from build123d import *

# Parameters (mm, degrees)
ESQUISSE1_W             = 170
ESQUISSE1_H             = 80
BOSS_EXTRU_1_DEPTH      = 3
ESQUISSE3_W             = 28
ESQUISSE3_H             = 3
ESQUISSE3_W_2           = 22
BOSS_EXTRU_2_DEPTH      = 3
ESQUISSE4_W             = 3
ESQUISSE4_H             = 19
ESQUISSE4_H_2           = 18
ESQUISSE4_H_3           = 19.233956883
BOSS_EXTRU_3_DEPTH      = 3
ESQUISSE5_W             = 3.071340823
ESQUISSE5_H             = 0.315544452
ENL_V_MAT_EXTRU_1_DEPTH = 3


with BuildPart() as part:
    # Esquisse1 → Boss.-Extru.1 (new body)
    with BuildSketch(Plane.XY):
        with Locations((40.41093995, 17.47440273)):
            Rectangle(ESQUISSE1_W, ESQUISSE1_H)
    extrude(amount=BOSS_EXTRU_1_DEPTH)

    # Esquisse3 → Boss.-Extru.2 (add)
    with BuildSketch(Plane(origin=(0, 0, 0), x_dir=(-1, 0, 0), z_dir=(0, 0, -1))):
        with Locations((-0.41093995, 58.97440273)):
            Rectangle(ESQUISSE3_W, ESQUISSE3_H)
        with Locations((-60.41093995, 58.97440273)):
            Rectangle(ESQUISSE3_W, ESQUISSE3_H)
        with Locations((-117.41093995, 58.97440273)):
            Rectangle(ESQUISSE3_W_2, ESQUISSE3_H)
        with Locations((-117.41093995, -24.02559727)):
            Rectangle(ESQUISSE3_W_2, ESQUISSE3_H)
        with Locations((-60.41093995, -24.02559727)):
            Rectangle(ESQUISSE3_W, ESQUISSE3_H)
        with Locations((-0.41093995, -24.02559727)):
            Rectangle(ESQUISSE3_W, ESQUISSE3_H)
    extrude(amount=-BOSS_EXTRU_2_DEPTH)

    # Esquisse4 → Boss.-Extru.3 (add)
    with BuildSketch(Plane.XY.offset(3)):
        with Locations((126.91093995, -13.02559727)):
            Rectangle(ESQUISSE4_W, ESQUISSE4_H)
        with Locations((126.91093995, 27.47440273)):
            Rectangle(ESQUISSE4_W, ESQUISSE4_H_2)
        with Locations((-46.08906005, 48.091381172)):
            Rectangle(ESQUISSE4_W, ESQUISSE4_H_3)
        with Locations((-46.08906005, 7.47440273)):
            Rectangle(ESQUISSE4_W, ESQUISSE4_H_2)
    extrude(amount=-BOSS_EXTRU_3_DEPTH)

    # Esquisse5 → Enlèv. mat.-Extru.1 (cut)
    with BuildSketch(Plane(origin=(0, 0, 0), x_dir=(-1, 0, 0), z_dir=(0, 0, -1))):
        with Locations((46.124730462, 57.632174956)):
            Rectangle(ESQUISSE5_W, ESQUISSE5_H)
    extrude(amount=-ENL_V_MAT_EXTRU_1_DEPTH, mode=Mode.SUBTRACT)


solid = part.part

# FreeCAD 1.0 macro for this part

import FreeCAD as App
import Part
import Sketcher
Q = App.Units.Quantity

doc = App.newDocument("Part")
params = doc.addObject("Spreadsheet::Sheet", "Params")
for row, (alias, value) in enumerate([
    ("sketch1_width", "170 mm"),
    ("sketch1_height", "80 mm"),
    ("pad1_length", "3 mm"),
    ("sketch2_width", "28 mm"),
    ("sketch2_width2", "22 mm"),
    ("sketch2_height", "3 mm"),
    ("pad2_length", "3 mm"),
    ("sketch3_width", "3 mm"),
    ("sketch3_height", "19 mm"),
    ("sketch3_height2", "18 mm"),
    ("pad3_length", "3 mm"),
    ("pocket1_length", "3 mm"),
], start=1):
    params.set(f"A{row}", alias)
    params.set(f"B{row}", "=" + value)
    params.setAlias(f"B{row}", alias)

body = doc.addObject("PartDesign::Body", "Body")

sketch1 = body.newObject("Sketcher::SketchObject", "Sketch")
sketch1.AttachmentSupport = (doc.getObject("XY_Plane"), [""])
sketch1.MapMode = "FlatFace"
sketch1.addGeometry(Part.LineSegment(App.Vector(-45, 57, 0), App.Vector(-45, -23, 0)), False)
sketch1.addGeometry(Part.LineSegment(App.Vector(-45, -23, 0), App.Vector(125, -23, 0)), False)
sketch1.addGeometry(Part.LineSegment(App.Vector(125, -23, 0), App.Vector(125, 57, 0)), False)
sketch1.addGeometry(Part.LineSegment(App.Vector(125, 57, 0), App.Vector(-45, 57, 0)), False)
sketch1.addConstraint(Sketcher.Constraint("Coincident", 0, 2, 1, 1))
sketch1.addConstraint(Sketcher.Constraint("Coincident", 1, 2, 2, 1))
sketch1.addConstraint(Sketcher.Constraint("Coincident", 2, 2, 3, 1))
sketch1.addConstraint(Sketcher.Constraint("Coincident", 3, 2, 0, 1))
sketch1.addConstraint(Sketcher.Constraint("Vertical", 0))
sketch1.addConstraint(Sketcher.Constraint("Horizontal", 1))
sketch1.addConstraint(Sketcher.Constraint("Vertical", 2))
sketch1.addConstraint(Sketcher.Constraint("Horizontal", 3))
sketch1.addConstraint(Sketcher.Constraint("DistanceX", 1, 1, 1, 2, Q("170 mm")))
sketch1.addConstraint(Sketcher.Constraint("DistanceY", 0, 2, 0, 1, Q("80 mm")))
sketch1.addConstraint(Sketcher.Constraint("DistanceX", 0, 2, -1, 1, Q("44.58906 mm")))
sketch1.addConstraint(Sketcher.Constraint("DistanceY", 0, 2, -1, 1, Q("22.525597 mm")))
sketch1.setExpression("Constraints[8]", "Params.sketch1_width")
sketch1.setExpression("Constraints[9]", "Params.sketch1_height")
pad1 = body.newObject("PartDesign::Pad", "Pad")
pad1.Profile = sketch1
pad1.setExpression("Length", "Params.pad1_length")

sketch2 = body.newObject("Sketcher::SketchObject", "Sketch001")
sketch2.AttachmentSupport = (doc.getObject("XY_Plane"), [""])
sketch2.MapMode = "FlatFace"
sketch2.addGeometry(Part.LineSegment(App.Vector(14.4, 60.5, 0), App.Vector(14.4, 57.5, 0)), False)
sketch2.addGeometry(Part.LineSegment(App.Vector(14.4, 57.5, 0), App.Vector(-13.6, 57.5, 0)), False)
sketch2.addGeometry(Part.LineSegment(App.Vector(-13.6, 57.5, 0), App.Vector(-13.6, 60.5, 0)), False)
sketch2.addGeometry(Part.LineSegment(App.Vector(-13.6, 60.5, 0), App.Vector(14.4, 60.5, 0)), False)
sketch2.addGeometry(Part.LineSegment(App.Vector(74.4, 60.5, 0), App.Vector(74.4, 57.5, 0)), False)
sketch2.addGeometry(Part.LineSegment(App.Vector(74.4, 57.5, 0), App.Vector(46.4, 57.5, 0)), False)
sketch2.addGeometry(Part.LineSegment(App.Vector(46.4, 57.5, 0), App.Vector(46.4, 60.5, 0)), False)
sketch2.addGeometry(Part.LineSegment(App.Vector(46.4, 60.5, 0), App.Vector(74.4, 60.5, 0)), False)
sketch2.addGeometry(Part.LineSegment(App.Vector(128.4, 60.5, 0), App.Vector(128.4, 57.5, 0)), False)
sketch2.addGeometry(Part.LineSegment(App.Vector(128.4, 57.5, 0), App.Vector(106.4, 57.5, 0)), False)
sketch2.addGeometry(Part.LineSegment(App.Vector(106.4, 57.5, 0), App.Vector(106.4, 60.5, 0)), False)
sketch2.addGeometry(Part.LineSegment(App.Vector(106.4, 60.5, 0), App.Vector(128.4, 60.5, 0)), False)
sketch2.addGeometry(Part.LineSegment(App.Vector(128.4, -22.5, 0), App.Vector(128.4, -25.5, 0)), False)
sketch2.addGeometry(Part.LineSegment(App.Vector(128.4, -25.5, 0), App.Vector(106.4, -25.5, 0)), False)
sketch2.addGeometry(Part.LineSegment(App.Vector(106.4, -25.5, 0), App.Vector(106.4, -22.5, 0)), False)
sketch2.addGeometry(Part.LineSegment(App.Vector(106.4, -22.5, 0), App.Vector(128.4, -22.5, 0)), False)
sketch2.addGeometry(Part.LineSegment(App.Vector(74.4, -22.5, 0), App.Vector(74.4, -25.5, 0)), False)
sketch2.addGeometry(Part.LineSegment(App.Vector(74.4, -25.5, 0), App.Vector(46.4, -25.5, 0)), False)
sketch2.addGeometry(Part.LineSegment(App.Vector(46.4, -25.5, 0), App.Vector(46.4, -22.5, 0)), False)
sketch2.addGeometry(Part.LineSegment(App.Vector(46.4, -22.5, 0), App.Vector(74.4, -22.5, 0)), False)
sketch2.addGeometry(Part.LineSegment(App.Vector(14.4, -22.5, 0), App.Vector(14.4, -25.5, 0)), False)
sketch2.addGeometry(Part.LineSegment(App.Vector(14.4, -25.5, 0), App.Vector(-13.6, -25.5, 0)), False)
sketch2.addGeometry(Part.LineSegment(App.Vector(-13.6, -25.5, 0), App.Vector(-13.6, -22.5, 0)), False)
sketch2.addGeometry(Part.LineSegment(App.Vector(-13.6, -22.5, 0), App.Vector(14.4, -22.5, 0)), False)
sketch2.addConstraint(Sketcher.Constraint("Coincident", 0, 2, 1, 1))
sketch2.addConstraint(Sketcher.Constraint("Coincident", 1, 2, 2, 1))
sketch2.addConstraint(Sketcher.Constraint("Coincident", 2, 2, 3, 1))
sketch2.addConstraint(Sketcher.Constraint("Coincident", 3, 2, 0, 1))
sketch2.addConstraint(Sketcher.Constraint("Coincident", 4, 2, 5, 1))
sketch2.addConstraint(Sketcher.Constraint("Coincident", 5, 2, 6, 1))
sketch2.addConstraint(Sketcher.Constraint("Coincident", 6, 2, 7, 1))
sketch2.addConstraint(Sketcher.Constraint("Coincident", 7, 2, 4, 1))
sketch2.addConstraint(Sketcher.Constraint("Coincident", 8, 2, 9, 1))
sketch2.addConstraint(Sketcher.Constraint("Coincident", 9, 2, 10, 1))
sketch2.addConstraint(Sketcher.Constraint("Coincident", 10, 2, 11, 1))
sketch2.addConstraint(Sketcher.Constraint("Coincident", 11, 2, 8, 1))
sketch2.addConstraint(Sketcher.Constraint("Coincident", 12, 2, 13, 1))
sketch2.addConstraint(Sketcher.Constraint("Coincident", 13, 2, 14, 1))
sketch2.addConstraint(Sketcher.Constraint("Coincident", 14, 2, 15, 1))
sketch2.addConstraint(Sketcher.Constraint("Coincident", 15, 2, 12, 1))
sketch2.addConstraint(Sketcher.Constraint("Coincident", 16, 2, 17, 1))
sketch2.addConstraint(Sketcher.Constraint("Coincident", 17, 2, 18, 1))
sketch2.addConstraint(Sketcher.Constraint("Coincident", 18, 2, 19, 1))
sketch2.addConstraint(Sketcher.Constraint("Coincident", 19, 2, 16, 1))
sketch2.addConstraint(Sketcher.Constraint("Coincident", 20, 2, 21, 1))
sketch2.addConstraint(Sketcher.Constraint("Coincident", 21, 2, 22, 1))
sketch2.addConstraint(Sketcher.Constraint("Coincident", 22, 2, 23, 1))
sketch2.addConstraint(Sketcher.Constraint("Coincident", 23, 2, 20, 1))
sketch2.addConstraint(Sketcher.Constraint("Vertical", 0))
sketch2.addConstraint(Sketcher.Constraint("Horizontal", 1))
sketch2.addConstraint(Sketcher.Constraint("Vertical", 2))
sketch2.addConstraint(Sketcher.Constraint("Horizontal", 3))
sketch2.addConstraint(Sketcher.Constraint("Vertical", 4))
sketch2.addConstraint(Sketcher.Constraint("Horizontal", 5))
sketch2.addConstraint(Sketcher.Constraint("Vertical", 6))
sketch2.addConstraint(Sketcher.Constraint("Horizontal", 7))
sketch2.addConstraint(Sketcher.Constraint("Vertical", 8))
sketch2.addConstraint(Sketcher.Constraint("Horizontal", 9))
sketch2.addConstraint(Sketcher.Constraint("Vertical", 10))
sketch2.addConstraint(Sketcher.Constraint("Horizontal", 11))
sketch2.addConstraint(Sketcher.Constraint("Vertical", 12))
sketch2.addConstraint(Sketcher.Constraint("Horizontal", 13))
sketch2.addConstraint(Sketcher.Constraint("Vertical", 14))
sketch2.addConstraint(Sketcher.Constraint("Horizontal", 15))
sketch2.addConstraint(Sketcher.Constraint("Vertical", 16))
sketch2.addConstraint(Sketcher.Constraint("Horizontal", 17))
sketch2.addConstraint(Sketcher.Constraint("Vertical", 18))
sketch2.addConstraint(Sketcher.Constraint("Horizontal", 19))
sketch2.addConstraint(Sketcher.Constraint("Vertical", 20))
sketch2.addConstraint(Sketcher.Constraint("Horizontal", 21))
sketch2.addConstraint(Sketcher.Constraint("Vertical", 22))
sketch2.addConstraint(Sketcher.Constraint("Horizontal", 23))
sketch2.addConstraint(Sketcher.Constraint("Horizontal", 1, 2, 4, 2))
sketch2.addConstraint(Sketcher.Constraint("Horizontal", 3, 2, 6, 2))
sketch2.addConstraint(Sketcher.Constraint("Horizontal", 5, 2, 8, 2))
sketch2.addConstraint(Sketcher.Constraint("Horizontal", 7, 2, 10, 2))
sketch2.addConstraint(Sketcher.Constraint("Horizontal", 13, 2, 16, 2))
sketch2.addConstraint(Sketcher.Constraint("Horizontal", 15, 2, 18, 2))
sketch2.addConstraint(Sketcher.Constraint("Horizontal", 17, 2, 20, 2))
sketch2.addConstraint(Sketcher.Constraint("Horizontal", 19, 2, 22, 2))
sketch2.addConstraint(Sketcher.Constraint("Vertical", 11, 2, 12, 2))
sketch2.addConstraint(Sketcher.Constraint("Vertical", 10, 2, 13, 2))
sketch2.addConstraint(Sketcher.Constraint("Vertical", 7, 2, 16, 2))
sketch2.addConstraint(Sketcher.Constraint("Vertical", 6, 2, 17, 2))
sketch2.addConstraint(Sketcher.Constraint("Vertical", 3, 2, 20, 2))
sketch2.addConstraint(Sketcher.Constraint("Vertical", 2, 2, 21, 2))
sketch2.addConstraint(Sketcher.Constraint("Equal", 3, 5))
sketch2.addConstraint(Sketcher.Constraint("Equal", 10, 12))
sketch2.addConstraint(Sketcher.Constraint("DistanceX", 1, 2, 1, 1, Q("28 mm")))
sketch2.addConstraint(Sketcher.Constraint("DistanceX", 9, 2, 9, 1, Q("22 mm")))
sketch2.addConstraint(Sketcher.Constraint("DistanceY", 0, 2, 0, 1, Q("3 mm")))
sketch2.addConstraint(Sketcher.Constraint("DistanceX", 0, 2, 4, 2, Q("60 mm")))
sketch2.addConstraint(Sketcher.Constraint("DistanceX", 4, 2, 8, 2, Q("54 mm")))
sketch2.addConstraint(Sketcher.Constraint("DistanceY", 12, 2, 8, 2, Q("83 mm")))
sketch2.addConstraint(Sketcher.Constraint("DistanceX", -1, 1, 0, 2, Q("14.41094 mm")))
sketch2.addConstraint(Sketcher.Constraint("DistanceY", -1, 1, 0, 2, Q("57.474403 mm")))
sketch2.setExpression("Constraints[64]", "Params.sketch2_width")
sketch2.setExpression("Constraints[65]", "Params.sketch2_width2")
sketch2.setExpression("Constraints[66]", "Params.sketch2_height")
pad2 = body.newObject("PartDesign::Pad", "Pad001")
pad2.Profile = sketch2
pad2.setExpression("Length", "Params.pad2_length")

sketch3 = body.newObject("Sketcher::SketchObject", "Sketch002")
sketch3.AttachmentSupport = (doc.getObject("XY_Plane"), [""])
sketch3.MapMode = "FlatFace"
sketch3.AttachmentOffset = App.Placement(App.Vector(0, 0, 3), App.Rotation())
sketch3.addGeometry(Part.LineSegment(App.Vector(125.4, -3.5, 0), App.Vector(125.4, -22.5, 0)), False)
sketch3.addGeometry(Part.LineSegment(App.Vector(125.4, -22.5, 0), App.Vector(128.4, -22.5, 0)), False)
sketch3.addGeometry(Part.LineSegment(App.Vector(128.4, -22.5, 0), App.Vector(128.4, -3.5, 0)), False)
sketch3.addGeometry(Part.LineSegment(App.Vector(128.4, -3.5, 0), App.Vector(125.4, -3.5, 0)), False)
sketch3.addGeometry(Part.LineSegment(App.Vector(125.4, 36.5, 0), App.Vector(125.4, 18.5, 0)), False)
sketch3.addGeometry(Part.LineSegment(App.Vector(125.4, 18.5, 0), App.Vector(128.4, 18.5, 0)), False)
sketch3.addGeometry(Part.LineSegment(App.Vector(128.4, 18.5, 0), App.Vector(128.4, 36.5, 0)), False)
sketch3.addGeometry(Part.LineSegment(App.Vector(128.4, 36.5, 0), App.Vector(125.4, 36.5, 0)), False)
sketch3.addGeometry(Part.LineSegment(App.Vector(-47.6, 57.7, 0), App.Vector(-47.6, 38.5, 0)), False)
sketch3.addGeometry(Part.LineSegment(App.Vector(-47.6, 38.5, 0), App.Vector(-44.6, 38.5, 0)), False)
sketch3.addGeometry(Part.LineSegment(App.Vector(-44.6, 38.5, 0), App.Vector(-44.6, 57.7, 0)), False)
sketch3.addGeometry(Part.LineSegment(App.Vector(-44.6, 57.7, 0), App.Vector(-47.6, 57.7, 0)), False)
sketch3.addGeometry(Part.LineSegment(App.Vector(-47.6, 16.5, 0), App.Vector(-47.6, -1.5, 0)), False)
sketch3.addGeometry(Part.LineSegment(App.Vector(-47.6, -1.5, 0), App.Vector(-44.6, -1.5, 0)), False)
sketch3.addGeometry(Part.LineSegment(App.Vector(-44.6, -1.5, 0), App.Vector(-44.6, 16.5, 0)), False)
sketch3.addGeometry(Part.LineSegment(App.Vector(-44.6, 16.5, 0), App.Vector(-47.6, 16.5, 0)), False)
sketch3.addConstraint(Sketcher.Constraint("Coincident", 0, 2, 1, 1))
sketch3.addConstraint(Sketcher.Constraint("Coincident", 1, 2, 2, 1))
sketch3.addConstraint(Sketcher.Constraint("Coincident", 2, 2, 3, 1))
sketch3.addConstraint(Sketcher.Constraint("Coincident", 3, 2, 0, 1))
sketch3.addConstraint(Sketcher.Constraint("Coincident", 4, 2, 5, 1))
sketch3.addConstraint(Sketcher.Constraint("Coincident", 5, 2, 6, 1))
sketch3.addConstraint(Sketcher.Constraint("Coincident", 6, 2, 7, 1))
sketch3.addConstraint(Sketcher.Constraint("Coincident", 7, 2, 4, 1))
sketch3.addConstraint(Sketcher.Constraint("Coincident", 8, 2, 9, 1))
sketch3.addConstraint(Sketcher.Constraint("Coincident", 9, 2, 10, 1))
sketch3.addConstraint(Sketcher.Constraint("Coincident", 10, 2, 11, 1))
sketch3.addConstraint(Sketcher.Constraint("Coincident", 11, 2, 8, 1))
sketch3.addConstraint(Sketcher.Constraint("Coincident", 12, 2, 13, 1))
sketch3.addConstraint(Sketcher.Constraint("Coincident", 13, 2, 14, 1))
sketch3.addConstraint(Sketcher.Constraint("Coincident", 14, 2, 15, 1))
sketch3.addConstraint(Sketcher.Constraint("Coincident", 15, 2, 12, 1))
sketch3.addConstraint(Sketcher.Constraint("Vertical", 0))
sketch3.addConstraint(Sketcher.Constraint("Horizontal", 1))
sketch3.addConstraint(Sketcher.Constraint("Vertical", 2))
sketch3.addConstraint(Sketcher.Constraint("Horizontal", 3))
sketch3.addConstraint(Sketcher.Constraint("Vertical", 4))
sketch3.addConstraint(Sketcher.Constraint("Horizontal", 5))
sketch3.addConstraint(Sketcher.Constraint("Vertical", 6))
sketch3.addConstraint(Sketcher.Constraint("Horizontal", 7))
sketch3.addConstraint(Sketcher.Constraint("Vertical", 8))
sketch3.addConstraint(Sketcher.Constraint("Horizontal", 9))
sketch3.addConstraint(Sketcher.Constraint("Vertical", 10))
sketch3.addConstraint(Sketcher.Constraint("Horizontal", 11))
sketch3.addConstraint(Sketcher.Constraint("Vertical", 12))
sketch3.addConstraint(Sketcher.Constraint("Horizontal", 13))
sketch3.addConstraint(Sketcher.Constraint("Vertical", 14))
sketch3.addConstraint(Sketcher.Constraint("Horizontal", 15))
sketch3.addConstraint(Sketcher.Constraint("Vertical", 3, 2, 4, 2))
sketch3.addConstraint(Sketcher.Constraint("Vertical", 2, 2, 5, 2))
sketch3.addConstraint(Sketcher.Constraint("Vertical", 11, 2, 12, 2))
sketch3.addConstraint(Sketcher.Constraint("Vertical", 10, 2, 13, 2))
sketch3.addConstraint(Sketcher.Constraint("Equal", 7, 9))
sketch3.addConstraint(Sketcher.Constraint("Equal", 6, 12))
sketch3.addConstraint(Sketcher.Constraint("DistanceX", 1, 1, 1, 2, Q("3 mm")))
sketch3.addConstraint(Sketcher.Constraint("DistanceY", 0, 2, 0, 1, Q("19 mm")))
sketch3.addConstraint(Sketcher.Constraint("DistanceY", 4, 2, 4, 1, Q("18 mm")))
sketch3.addConstraint(Sketcher.Constraint("DistanceY", 3, 2, 4, 2, Q("22 mm")))
sketch3.addConstraint(Sketcher.Constraint("DistanceX", 8, 2, 7, 2, Q("173 mm")))
sketch3.addConstraint(Sketcher.Constraint("DistanceY", 7, 2, 8, 2, Q("2 mm")))
sketch3.addConstraint(Sketcher.Constraint("DistanceY", 12, 2, 8, 2, Q("40 mm")))
sketch3.addConstraint(Sketcher.Constraint("DistanceY", 8, 2, 8, 1, Q("19.233957 mm")))
sketch3.addConstraint(Sketcher.Constraint("DistanceX", -1, 1, 0, 2, Q("125.41094 mm")))
sketch3.addConstraint(Sketcher.Constraint("DistanceY", -1, 1, 10, 2, Q("57.70836 mm")))
sketch3.setExpression("Constraints[38]", "Params.sketch3_width")
sketch3.setExpression("Constraints[39]", "Params.sketch3_height")
sketch3.setExpression("Constraints[40]", "Params.sketch3_height2")
pad3 = body.newObject("PartDesign::Pad", "Pad002")
pad3.Profile = sketch3
pad3.setExpression("Length", "Params.pad3_length")
pad3.Reversed = True

sketch4 = body.newObject("Sketcher::SketchObject", "Sketch003")
sketch4.AttachmentSupport = (doc.getObject("XY_Plane"), [""])
sketch4.MapMode = "FlatFace"
sketch4.addGeometry(Part.LineSegment(App.Vector(-44.59, 57.79, 0), App.Vector(-44.59, 57.47, 0)), False)
sketch4.addGeometry(Part.LineSegment(App.Vector(-44.59, 57.47, 0), App.Vector(-47.66, 57.47, 0)), False)
sketch4.addGeometry(Part.LineSegment(App.Vector(-47.66, 57.47, 0), App.Vector(-47.66, 57.79, 0)), False)
sketch4.addGeometry(Part.LineSegment(App.Vector(-47.66, 57.79, 0), App.Vector(-44.59, 57.79, 0)), False)
sketch4.addConstraint(Sketcher.Constraint("Coincident", 0, 2, 1, 1))
sketch4.addConstraint(Sketcher.Constraint("Coincident", 1, 2, 2, 1))
sketch4.addConstraint(Sketcher.Constraint("Coincident", 2, 2, 3, 1))
sketch4.addConstraint(Sketcher.Constraint("Coincident", 3, 2, 0, 1))
sketch4.addConstraint(Sketcher.Constraint("Vertical", 0))
sketch4.addConstraint(Sketcher.Constraint("Horizontal", 1))
sketch4.addConstraint(Sketcher.Constraint("Vertical", 2))
sketch4.addConstraint(Sketcher.Constraint("Horizontal", 3))
sketch4.addConstraint(Sketcher.Constraint("DistanceX", 1, 2, 1, 1, Q("3.071341 mm")))
sketch4.addConstraint(Sketcher.Constraint("DistanceX", 1, 2, -1, 1, Q("47.660401 mm")))
sketch4.addConstraint(Sketcher.Constraint("DistanceY", 0, 2, 0, 1, Q("0.315544 mm")))
sketch4.addConstraint(Sketcher.Constraint("DistanceY", -1, 1, 0, 2, Q("57.474403 mm")))
pocket1 = body.newObject("PartDesign::Pocket", "Pocket")
pocket1.Profile = sketch4
pocket1.setExpression("Length", "Params.pocket1_length")
pocket1.Reversed = True

doc.recompute()
